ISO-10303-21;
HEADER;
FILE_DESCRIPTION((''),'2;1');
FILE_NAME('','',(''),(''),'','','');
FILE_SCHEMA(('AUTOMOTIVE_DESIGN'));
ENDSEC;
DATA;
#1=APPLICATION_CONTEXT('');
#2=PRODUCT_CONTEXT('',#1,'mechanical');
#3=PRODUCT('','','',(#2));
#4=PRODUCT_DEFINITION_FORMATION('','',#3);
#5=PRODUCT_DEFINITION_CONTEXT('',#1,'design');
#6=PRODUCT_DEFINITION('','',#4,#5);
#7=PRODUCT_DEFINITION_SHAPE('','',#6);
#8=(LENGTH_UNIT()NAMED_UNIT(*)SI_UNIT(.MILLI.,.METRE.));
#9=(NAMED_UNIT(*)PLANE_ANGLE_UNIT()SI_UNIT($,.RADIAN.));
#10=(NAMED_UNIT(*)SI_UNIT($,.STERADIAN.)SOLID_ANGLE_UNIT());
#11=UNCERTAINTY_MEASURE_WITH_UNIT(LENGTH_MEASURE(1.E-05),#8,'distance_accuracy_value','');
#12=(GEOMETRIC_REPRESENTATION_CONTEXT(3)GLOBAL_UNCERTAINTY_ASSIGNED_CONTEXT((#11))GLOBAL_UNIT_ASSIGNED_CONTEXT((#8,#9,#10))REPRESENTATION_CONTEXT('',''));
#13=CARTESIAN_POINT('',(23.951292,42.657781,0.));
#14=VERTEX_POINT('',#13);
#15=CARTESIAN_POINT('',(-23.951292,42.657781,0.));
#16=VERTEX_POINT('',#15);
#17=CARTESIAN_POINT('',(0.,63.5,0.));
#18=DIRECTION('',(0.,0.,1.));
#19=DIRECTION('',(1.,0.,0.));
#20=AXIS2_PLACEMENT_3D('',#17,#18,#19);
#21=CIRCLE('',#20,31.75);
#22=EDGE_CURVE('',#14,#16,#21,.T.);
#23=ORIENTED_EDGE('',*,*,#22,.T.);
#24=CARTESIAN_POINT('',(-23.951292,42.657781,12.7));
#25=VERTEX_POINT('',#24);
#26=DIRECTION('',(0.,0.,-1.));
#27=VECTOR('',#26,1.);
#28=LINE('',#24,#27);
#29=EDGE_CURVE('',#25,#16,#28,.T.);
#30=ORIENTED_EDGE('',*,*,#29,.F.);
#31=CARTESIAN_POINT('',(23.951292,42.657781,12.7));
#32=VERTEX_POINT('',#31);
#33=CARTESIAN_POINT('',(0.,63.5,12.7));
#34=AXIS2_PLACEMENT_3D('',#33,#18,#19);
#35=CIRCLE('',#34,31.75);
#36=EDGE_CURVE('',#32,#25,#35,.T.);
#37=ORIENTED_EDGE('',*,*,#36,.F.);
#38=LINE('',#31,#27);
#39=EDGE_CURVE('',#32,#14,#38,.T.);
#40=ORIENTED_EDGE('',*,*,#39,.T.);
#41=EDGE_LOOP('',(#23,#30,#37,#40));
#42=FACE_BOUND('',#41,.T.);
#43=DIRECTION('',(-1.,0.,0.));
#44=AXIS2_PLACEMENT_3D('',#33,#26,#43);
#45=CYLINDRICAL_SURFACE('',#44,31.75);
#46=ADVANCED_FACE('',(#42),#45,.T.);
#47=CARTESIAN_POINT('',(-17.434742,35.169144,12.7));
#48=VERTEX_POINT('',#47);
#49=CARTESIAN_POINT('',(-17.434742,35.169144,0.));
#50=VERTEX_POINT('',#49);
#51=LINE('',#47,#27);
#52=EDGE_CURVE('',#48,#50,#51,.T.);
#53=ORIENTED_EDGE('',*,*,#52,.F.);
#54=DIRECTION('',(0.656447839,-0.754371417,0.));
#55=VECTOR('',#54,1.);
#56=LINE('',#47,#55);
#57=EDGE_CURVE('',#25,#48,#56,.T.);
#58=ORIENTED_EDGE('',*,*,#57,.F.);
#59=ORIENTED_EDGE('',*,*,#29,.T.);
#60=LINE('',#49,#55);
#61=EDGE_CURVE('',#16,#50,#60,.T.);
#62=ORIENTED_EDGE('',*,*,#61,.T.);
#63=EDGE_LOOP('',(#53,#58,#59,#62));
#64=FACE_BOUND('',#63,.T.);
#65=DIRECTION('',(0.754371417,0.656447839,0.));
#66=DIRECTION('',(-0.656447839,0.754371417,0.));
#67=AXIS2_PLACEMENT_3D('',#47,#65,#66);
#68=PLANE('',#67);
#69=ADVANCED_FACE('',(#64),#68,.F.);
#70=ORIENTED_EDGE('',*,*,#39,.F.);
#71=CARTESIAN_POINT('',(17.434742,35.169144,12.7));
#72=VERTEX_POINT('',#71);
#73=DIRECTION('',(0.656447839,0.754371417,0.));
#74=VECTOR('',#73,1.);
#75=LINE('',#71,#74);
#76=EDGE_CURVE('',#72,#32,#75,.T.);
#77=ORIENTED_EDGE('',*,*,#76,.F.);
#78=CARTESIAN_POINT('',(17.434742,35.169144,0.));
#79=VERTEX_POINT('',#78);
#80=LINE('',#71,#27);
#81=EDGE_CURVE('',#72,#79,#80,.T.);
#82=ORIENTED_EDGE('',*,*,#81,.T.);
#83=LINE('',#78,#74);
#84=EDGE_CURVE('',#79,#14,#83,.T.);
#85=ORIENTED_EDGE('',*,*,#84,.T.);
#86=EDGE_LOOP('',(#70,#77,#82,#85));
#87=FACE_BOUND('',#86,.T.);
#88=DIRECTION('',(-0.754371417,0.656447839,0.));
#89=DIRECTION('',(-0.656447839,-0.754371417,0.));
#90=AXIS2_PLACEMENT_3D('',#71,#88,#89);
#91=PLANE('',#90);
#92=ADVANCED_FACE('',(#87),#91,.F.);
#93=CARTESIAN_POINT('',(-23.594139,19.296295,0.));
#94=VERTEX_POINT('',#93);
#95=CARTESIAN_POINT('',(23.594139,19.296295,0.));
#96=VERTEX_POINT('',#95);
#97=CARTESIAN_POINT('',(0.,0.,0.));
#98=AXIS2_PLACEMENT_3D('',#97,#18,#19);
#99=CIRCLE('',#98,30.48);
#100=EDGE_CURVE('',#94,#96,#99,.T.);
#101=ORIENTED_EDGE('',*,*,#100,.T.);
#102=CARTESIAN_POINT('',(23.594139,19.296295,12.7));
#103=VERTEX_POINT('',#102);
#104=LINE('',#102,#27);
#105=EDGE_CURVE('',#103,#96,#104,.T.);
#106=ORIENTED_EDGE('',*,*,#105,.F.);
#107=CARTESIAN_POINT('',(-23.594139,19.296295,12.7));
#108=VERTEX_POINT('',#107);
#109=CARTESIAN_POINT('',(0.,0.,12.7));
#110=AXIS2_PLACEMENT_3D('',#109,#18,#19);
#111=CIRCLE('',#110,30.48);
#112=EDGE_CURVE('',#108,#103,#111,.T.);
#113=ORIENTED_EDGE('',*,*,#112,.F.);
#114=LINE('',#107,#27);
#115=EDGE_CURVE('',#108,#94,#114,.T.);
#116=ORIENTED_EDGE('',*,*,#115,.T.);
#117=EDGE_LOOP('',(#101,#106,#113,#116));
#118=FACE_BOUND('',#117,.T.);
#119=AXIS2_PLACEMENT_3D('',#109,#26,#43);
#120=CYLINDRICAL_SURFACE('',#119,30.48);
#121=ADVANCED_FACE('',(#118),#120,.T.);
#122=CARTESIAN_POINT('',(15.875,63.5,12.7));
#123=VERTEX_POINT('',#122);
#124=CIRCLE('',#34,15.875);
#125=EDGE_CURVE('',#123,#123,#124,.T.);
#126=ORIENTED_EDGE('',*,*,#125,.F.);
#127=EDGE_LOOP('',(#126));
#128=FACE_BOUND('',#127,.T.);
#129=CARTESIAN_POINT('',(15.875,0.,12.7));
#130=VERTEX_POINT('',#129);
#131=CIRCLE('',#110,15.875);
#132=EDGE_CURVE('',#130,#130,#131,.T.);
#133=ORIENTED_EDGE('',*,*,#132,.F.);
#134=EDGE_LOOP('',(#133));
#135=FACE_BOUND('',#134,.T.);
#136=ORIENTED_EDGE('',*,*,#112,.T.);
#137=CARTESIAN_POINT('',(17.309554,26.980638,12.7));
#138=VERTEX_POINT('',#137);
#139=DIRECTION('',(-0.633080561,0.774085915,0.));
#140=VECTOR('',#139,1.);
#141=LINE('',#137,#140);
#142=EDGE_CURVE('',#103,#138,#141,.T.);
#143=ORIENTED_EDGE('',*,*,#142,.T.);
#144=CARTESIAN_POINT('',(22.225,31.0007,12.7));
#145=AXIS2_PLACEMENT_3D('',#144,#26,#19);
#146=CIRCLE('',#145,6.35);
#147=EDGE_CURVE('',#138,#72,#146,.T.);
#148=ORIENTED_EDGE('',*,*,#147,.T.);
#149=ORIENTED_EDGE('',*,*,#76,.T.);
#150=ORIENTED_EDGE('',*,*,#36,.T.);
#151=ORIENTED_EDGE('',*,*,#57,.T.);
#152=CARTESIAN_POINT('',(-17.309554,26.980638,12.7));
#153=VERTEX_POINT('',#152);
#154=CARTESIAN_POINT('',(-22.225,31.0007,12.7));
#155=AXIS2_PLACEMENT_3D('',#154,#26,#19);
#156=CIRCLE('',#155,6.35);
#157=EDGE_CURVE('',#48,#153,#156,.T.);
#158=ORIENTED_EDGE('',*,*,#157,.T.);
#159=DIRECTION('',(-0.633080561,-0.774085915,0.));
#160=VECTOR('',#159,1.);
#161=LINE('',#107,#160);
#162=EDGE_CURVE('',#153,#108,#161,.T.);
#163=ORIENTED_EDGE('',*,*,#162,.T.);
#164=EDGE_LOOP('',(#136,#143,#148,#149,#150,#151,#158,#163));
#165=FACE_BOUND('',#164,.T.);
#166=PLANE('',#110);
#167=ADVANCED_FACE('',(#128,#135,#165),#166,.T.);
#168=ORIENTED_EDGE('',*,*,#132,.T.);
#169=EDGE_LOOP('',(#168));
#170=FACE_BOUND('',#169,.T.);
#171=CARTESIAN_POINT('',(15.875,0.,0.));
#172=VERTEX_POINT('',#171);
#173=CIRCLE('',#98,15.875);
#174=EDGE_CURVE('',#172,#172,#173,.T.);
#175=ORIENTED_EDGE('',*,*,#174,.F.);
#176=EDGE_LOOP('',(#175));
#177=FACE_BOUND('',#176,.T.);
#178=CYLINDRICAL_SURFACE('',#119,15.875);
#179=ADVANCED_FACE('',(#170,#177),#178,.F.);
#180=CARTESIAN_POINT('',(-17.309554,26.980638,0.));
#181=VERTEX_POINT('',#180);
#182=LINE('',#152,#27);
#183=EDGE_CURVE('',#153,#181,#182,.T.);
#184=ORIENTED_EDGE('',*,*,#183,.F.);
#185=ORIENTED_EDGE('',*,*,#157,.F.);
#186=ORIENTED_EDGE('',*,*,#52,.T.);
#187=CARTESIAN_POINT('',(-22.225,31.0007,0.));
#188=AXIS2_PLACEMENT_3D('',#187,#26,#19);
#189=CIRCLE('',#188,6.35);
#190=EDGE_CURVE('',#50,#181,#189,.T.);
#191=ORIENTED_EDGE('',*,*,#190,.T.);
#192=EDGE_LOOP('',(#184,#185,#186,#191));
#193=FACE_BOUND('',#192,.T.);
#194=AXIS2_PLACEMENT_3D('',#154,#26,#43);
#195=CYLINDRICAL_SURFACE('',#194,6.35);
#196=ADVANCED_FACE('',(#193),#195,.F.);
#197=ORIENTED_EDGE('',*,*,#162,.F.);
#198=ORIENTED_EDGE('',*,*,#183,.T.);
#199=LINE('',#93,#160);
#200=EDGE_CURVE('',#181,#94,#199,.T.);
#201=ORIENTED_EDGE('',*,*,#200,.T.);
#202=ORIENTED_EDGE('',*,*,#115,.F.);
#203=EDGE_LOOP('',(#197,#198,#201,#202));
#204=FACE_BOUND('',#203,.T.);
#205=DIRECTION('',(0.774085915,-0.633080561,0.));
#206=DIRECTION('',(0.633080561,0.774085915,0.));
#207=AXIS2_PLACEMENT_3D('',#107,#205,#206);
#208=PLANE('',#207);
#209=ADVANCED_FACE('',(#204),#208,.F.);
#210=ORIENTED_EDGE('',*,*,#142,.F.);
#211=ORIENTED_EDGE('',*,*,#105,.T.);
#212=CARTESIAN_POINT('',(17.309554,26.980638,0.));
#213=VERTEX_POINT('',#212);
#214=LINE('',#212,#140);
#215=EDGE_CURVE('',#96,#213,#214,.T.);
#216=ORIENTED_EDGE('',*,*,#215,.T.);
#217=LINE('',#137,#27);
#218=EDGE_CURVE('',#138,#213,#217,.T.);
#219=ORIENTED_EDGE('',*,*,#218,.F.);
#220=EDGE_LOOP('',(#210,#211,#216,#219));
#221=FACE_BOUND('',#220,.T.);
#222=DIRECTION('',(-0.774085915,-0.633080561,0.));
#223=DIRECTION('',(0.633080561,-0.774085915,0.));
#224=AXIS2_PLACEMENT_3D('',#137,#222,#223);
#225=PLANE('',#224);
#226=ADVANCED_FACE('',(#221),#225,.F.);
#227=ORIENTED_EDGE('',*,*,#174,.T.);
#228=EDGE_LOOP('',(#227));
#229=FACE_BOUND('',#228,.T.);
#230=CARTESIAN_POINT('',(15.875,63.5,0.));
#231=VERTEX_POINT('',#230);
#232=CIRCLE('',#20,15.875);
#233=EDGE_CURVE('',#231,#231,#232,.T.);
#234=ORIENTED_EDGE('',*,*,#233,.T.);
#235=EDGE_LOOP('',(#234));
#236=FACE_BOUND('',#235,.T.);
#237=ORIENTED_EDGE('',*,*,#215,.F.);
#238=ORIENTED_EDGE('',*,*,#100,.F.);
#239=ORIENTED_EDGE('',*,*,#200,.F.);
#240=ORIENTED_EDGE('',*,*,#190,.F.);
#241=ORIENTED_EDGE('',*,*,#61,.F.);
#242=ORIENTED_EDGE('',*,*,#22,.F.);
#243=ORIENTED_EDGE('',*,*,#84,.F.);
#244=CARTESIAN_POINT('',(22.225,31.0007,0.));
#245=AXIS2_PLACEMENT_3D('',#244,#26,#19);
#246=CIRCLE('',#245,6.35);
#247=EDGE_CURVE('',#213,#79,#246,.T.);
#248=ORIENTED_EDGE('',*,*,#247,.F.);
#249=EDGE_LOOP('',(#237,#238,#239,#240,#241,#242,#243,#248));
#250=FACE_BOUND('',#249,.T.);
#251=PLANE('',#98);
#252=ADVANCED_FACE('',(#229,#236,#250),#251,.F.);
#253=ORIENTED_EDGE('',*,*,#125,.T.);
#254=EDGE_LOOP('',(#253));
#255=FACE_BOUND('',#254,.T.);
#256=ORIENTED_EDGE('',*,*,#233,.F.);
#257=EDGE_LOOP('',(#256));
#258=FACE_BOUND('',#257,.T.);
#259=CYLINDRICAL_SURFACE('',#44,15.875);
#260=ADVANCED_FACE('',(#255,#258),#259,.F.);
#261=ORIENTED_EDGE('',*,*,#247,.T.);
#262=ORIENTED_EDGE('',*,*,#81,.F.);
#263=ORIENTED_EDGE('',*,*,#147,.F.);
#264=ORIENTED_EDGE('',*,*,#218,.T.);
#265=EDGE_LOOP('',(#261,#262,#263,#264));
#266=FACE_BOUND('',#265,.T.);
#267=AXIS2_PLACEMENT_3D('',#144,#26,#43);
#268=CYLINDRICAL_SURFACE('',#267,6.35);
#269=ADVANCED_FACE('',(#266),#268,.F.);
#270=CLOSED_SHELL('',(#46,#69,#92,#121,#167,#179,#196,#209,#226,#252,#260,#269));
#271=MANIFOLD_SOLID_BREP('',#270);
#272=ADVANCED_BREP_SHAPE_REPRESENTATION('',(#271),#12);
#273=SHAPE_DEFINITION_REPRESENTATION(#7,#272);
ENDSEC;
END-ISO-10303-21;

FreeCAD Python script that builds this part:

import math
import FreeCAD as App
import Part
import Sketcher

V = App.Vector
Q = App.Units.Quantity

doc = App.newDocument("Part")
body = doc.addObject("PartDesign::Body", "Body")

# Sketch on XY plane
sketch1 = body.newObject("Sketcher::SketchObject", "Sketch")
sketch1.AttachmentSupport = (doc.getObject("XY_Plane"), [""])
sketch1.MapMode = "FlatFace"
sketch1.addGeometry(Part.LineSegment(V(17, 35, 0), V(24, 43, 0)), False)
sketch1.addGeometry(Part.ArcOfCircle(Part.Circle(V(0, 64, 0), V(0, 0, 1), 32), math.radians(-41), math.radians(221)), False)
sketch1.addGeometry(Part.LineSegment(V(-24, 43, 0), V(-17, 35, 0)), False)
sketch1.addGeometry(Part.ArcOfCircle(Part.Circle(V(-22, 31, 0), V(0, 0, 1), 6), math.radians(-39), math.radians(41)), False)
sketch1.addGeometry(Part.LineSegment(V(-17, 27, 0), V(-24, 19, 0)), False)
sketch1.addGeometry(Part.ArcOfCircle(Part.Circle(V(0, 0, 0), V(0, 0, 1), 30), math.radians(141), math.radians(399)), False)
sketch1.addGeometry(Part.LineSegment(V(24, 19, 0), V(17, 27, 0)), False)
sketch1.addGeometry(Part.ArcOfCircle(Part.Circle(V(22, 31, 0), V(0, 0, 1), 6), math.radians(139), math.radians(219)), False)
sketch1.addGeometry(Part.Circle(V(0, 0, 0), V(0, 0, 1), 16), False)
sketch1.addGeometry(Part.Circle(V(0, 64, 0), V(0, 0, 1), 16), False)
sketch1.addConstraint(Sketcher.Constraint("Tangent", 0, 2, 1, 1))
sketch1.addConstraint(Sketcher.Constraint("Tangent", 1, 2, 2, 1))
sketch1.addConstraint(Sketcher.Constraint("Tangent", 2, 2, 3, 2))
sketch1.addConstraint(Sketcher.Constraint("Tangent", 3, 1, 4, 1))
sketch1.addConstraint(Sketcher.Constraint("Tangent", 4, 2, 5, 1))
sketch1.addConstraint(Sketcher.Constraint("Tangent", 5, 2, 6, 1))
sketch1.addConstraint(Sketcher.Constraint("Tangent", 6, 2, 7, 2))
sketch1.addConstraint(Sketcher.Constraint("Tangent", 7, 1, 0, 1))
sketch1.addConstraint(Sketcher.Constraint("Coincident", 5, 3, -1, 1))
sketch1.addConstraint(Sketcher.Constraint("Coincident", 8, 3, -1, 1))
sketch1.addConstraint(Sketcher.Constraint("Coincident", 9, 3, 1, 3))
sketch1.addConstraint(Sketcher.Constraint("Equal", 3, 7))
sketch1.addConstraint(Sketcher.Constraint("Equal", 8, 9))
sketch1.addConstraint(Sketcher.Constraint("Symmetric", 3, 3, 7, 3, -2))
sketch1.addConstraint(Sketcher.Constraint("PointOnObject", 1, 3, -2))
sketch1.addConstraint(Sketcher.Constraint("Equal", 2, 4))
sketch1.addConstraint(Sketcher.Constraint("Radius", 5, Q("1.2 in")))
sketch1.addConstraint(Sketcher.Constraint("Diameter", 8, Q("1.25 in")))
sketch1.addConstraint(Sketcher.Constraint("Radius", 1, Q("1.25 in")))
sketch1.addConstraint(Sketcher.Constraint("Radius", 3, Q("0.25 in")))
sketch1.addConstraint(Sketcher.Constraint("DistanceY", -1, 1, 1, 3, Q("2.5 in")))
sketch1.addConstraint(Sketcher.Constraint("DistanceX", 3, 3, 7, 3, Q("1.75 in")))
pad1 = body.newObject("PartDesign::Pad", "Pad")
pad1.Profile = sketch1
pad1.Length = Q("0.5 in")

doc.recompute()
